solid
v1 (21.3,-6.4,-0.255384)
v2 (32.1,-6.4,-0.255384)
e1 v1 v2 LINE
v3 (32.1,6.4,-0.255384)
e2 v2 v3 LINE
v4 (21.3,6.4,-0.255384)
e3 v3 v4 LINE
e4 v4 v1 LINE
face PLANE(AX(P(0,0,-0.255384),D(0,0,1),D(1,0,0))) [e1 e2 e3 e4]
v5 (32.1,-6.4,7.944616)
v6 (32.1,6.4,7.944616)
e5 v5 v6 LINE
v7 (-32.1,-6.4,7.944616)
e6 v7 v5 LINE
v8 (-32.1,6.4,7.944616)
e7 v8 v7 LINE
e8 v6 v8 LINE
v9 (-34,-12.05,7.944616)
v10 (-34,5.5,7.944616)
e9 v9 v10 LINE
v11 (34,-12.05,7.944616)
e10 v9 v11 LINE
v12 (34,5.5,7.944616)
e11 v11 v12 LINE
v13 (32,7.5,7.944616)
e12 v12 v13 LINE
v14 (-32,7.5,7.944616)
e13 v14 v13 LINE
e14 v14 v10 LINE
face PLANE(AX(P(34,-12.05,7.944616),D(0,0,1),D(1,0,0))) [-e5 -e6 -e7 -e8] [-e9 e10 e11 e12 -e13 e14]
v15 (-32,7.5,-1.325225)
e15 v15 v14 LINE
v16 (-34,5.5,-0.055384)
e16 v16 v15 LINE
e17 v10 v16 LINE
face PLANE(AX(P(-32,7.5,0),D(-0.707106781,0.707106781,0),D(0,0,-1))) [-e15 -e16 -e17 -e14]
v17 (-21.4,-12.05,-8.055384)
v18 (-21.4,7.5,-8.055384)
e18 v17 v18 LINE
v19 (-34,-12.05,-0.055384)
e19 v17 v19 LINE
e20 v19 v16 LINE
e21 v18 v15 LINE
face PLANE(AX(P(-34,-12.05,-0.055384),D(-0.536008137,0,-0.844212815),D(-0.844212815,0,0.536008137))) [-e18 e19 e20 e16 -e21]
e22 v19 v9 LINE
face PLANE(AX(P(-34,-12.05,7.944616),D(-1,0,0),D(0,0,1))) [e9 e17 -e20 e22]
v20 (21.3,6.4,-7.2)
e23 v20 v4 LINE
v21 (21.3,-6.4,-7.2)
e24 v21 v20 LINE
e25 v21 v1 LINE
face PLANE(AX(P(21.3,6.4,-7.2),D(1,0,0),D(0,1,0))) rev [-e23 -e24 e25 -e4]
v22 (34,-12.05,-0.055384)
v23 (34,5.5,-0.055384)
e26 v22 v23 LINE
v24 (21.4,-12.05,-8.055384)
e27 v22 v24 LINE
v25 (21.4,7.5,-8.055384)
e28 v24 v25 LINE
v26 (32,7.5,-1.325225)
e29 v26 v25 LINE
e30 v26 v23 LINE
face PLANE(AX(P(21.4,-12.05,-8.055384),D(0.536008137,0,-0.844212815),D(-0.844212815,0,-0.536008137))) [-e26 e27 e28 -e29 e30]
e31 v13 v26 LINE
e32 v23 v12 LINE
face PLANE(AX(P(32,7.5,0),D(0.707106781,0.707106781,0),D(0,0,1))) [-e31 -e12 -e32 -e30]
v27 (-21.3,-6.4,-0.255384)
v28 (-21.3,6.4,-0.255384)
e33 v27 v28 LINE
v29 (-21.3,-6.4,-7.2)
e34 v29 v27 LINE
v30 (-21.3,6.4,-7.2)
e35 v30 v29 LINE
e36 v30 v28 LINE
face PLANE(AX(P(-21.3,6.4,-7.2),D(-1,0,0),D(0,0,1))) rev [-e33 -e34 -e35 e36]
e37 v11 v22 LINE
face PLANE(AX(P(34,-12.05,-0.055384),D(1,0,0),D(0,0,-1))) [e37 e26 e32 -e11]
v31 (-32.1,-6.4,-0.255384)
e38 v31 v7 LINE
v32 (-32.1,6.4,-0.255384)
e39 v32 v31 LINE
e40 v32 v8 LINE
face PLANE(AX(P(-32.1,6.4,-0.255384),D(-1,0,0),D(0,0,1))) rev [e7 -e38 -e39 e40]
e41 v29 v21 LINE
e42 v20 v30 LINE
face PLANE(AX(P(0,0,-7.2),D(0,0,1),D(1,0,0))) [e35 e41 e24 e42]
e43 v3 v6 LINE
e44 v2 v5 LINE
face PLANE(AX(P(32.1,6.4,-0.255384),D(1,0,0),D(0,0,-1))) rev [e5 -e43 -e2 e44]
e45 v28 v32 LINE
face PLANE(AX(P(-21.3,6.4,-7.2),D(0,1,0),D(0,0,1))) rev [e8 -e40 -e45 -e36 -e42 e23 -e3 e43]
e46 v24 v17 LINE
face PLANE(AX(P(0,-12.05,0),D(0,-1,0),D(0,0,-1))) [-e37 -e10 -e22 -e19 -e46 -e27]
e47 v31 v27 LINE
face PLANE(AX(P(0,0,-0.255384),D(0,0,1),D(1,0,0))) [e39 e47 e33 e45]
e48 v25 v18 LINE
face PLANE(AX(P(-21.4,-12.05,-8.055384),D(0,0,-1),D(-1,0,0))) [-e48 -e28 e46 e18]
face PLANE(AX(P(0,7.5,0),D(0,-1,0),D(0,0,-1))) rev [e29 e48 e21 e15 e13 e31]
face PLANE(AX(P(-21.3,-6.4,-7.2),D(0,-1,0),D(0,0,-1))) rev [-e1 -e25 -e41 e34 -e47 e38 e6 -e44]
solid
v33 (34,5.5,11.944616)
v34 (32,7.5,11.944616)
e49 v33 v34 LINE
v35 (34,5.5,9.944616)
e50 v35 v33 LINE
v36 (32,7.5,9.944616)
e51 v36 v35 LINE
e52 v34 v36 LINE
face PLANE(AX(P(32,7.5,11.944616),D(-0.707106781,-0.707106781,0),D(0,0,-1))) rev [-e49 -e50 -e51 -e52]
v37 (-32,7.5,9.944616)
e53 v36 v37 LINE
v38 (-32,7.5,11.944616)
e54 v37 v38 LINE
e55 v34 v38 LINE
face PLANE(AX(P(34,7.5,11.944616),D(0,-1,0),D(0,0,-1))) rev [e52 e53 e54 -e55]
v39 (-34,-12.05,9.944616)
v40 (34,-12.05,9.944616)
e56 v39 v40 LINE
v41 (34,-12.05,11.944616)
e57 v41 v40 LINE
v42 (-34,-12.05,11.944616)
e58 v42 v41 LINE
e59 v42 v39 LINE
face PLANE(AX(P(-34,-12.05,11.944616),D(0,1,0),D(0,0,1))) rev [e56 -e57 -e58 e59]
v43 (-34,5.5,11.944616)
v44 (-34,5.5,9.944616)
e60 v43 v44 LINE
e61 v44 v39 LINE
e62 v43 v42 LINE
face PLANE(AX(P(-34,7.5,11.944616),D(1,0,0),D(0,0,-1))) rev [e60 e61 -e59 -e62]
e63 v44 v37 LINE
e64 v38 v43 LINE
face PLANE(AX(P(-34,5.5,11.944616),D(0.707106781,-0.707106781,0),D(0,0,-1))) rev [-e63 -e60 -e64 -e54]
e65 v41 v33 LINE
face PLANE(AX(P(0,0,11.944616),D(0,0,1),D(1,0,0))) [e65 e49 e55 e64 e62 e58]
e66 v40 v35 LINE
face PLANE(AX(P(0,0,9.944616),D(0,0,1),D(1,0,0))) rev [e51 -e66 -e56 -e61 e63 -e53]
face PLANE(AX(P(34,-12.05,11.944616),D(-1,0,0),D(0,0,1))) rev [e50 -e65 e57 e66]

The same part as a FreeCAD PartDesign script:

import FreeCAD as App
import Part
import Sketcher


def edges_at(feature, points):
    """Names of the edges that pass closest to the given points."""
    edges = feature.Shape.Edges
    near = lambda p: min(range(len(edges)), key=lambda i: edges[i].distToShape(Part.Vertex(*p))[0])
    return sorted({f"Edge{near(p) + 1}" for p in points})

doc = App.newDocument("Part")
body = doc.addObject("PartDesign::Body", "Body")

# Sketch on XZ plane
sketch1 = body.newObject("Sketcher::SketchObject", "Sketch")
sketch1.AttachmentSupport = (doc.getObject("XZ_Plane"), [""])
sketch1.MapMode = "FlatFace"
sketch1.addGeometry(Part.LineSegment(App.Vector(-21.4, -8.055384, 0), App.Vector(-34, -0.055384, 0)), False)
sketch1.addGeometry(Part.LineSegment(App.Vector(-34, -0.055384, 0), App.Vector(-34, 7.944616, 0)), False)
sketch1.addGeometry(Part.LineSegment(App.Vector(-34, 7.944616, 0), App.Vector(34, 7.944616, 0)), False)
sketch1.addGeometry(Part.LineSegment(App.Vector(34, 7.944616, 0), App.Vector(34, -0.055384, 0)), False)
sketch1.addGeometry(Part.LineSegment(App.Vector(34, -0.055384, 0), App.Vector(21.4, -8.055384, 0)), False)
sketch1.addGeometry(Part.LineSegment(App.Vector(21.4, -8.055384, 0), App.Vector(-21.4, -8.055384, 0)), False)
sketch1.addConstraint(Sketcher.Constraint("Coincident", 0, 2, 1, 1))
sketch1.addConstraint(Sketcher.Constraint("Coincident", 1, 2, 2, 1))
sketch1.addConstraint(Sketcher.Constraint("Coincident", 2, 2, 3, 1))
sketch1.addConstraint(Sketcher.Constraint("Coincident", 3, 2, 4, 1))
sketch1.addConstraint(Sketcher.Constraint("Coincident", 4, 2, 5, 1))
sketch1.addConstraint(Sketcher.Constraint("Coincident", 5, 2, 0, 1))
sketch1.addConstraint(Sketcher.Constraint("Vertical", 1))
sketch1.addConstraint(Sketcher.Constraint("Horizontal", 2))
sketch1.addConstraint(Sketcher.Constraint("Vertical", 3))
sketch1.addConstraint(Sketcher.Constraint("Horizontal", 5))
sketch1.addConstraint(Sketcher.Constraint("Symmetric", 0, 2, 3, 2, -2))
sketch1.addConstraint(Sketcher.Constraint("Equal", 0, 4))
sketch1.addConstraint(Sketcher.Constraint("DistanceX", 2, 1, 2, 2, 68.0))
sketch1.addConstraint(Sketcher.Constraint("DistanceY", 1, 1, 1, 2, 8.0))
sketch1.addConstraint(Sketcher.Constraint("DistanceX", 5, 2, 5, 1, 42.8))
sketch1.addConstraint(Sketcher.Constraint("DistanceY", 4, 2, 3, 2, 8.0))
sketch1.addConstraint(Sketcher.Constraint("DistanceY", 0, 2, -1, 1, 0.055384))
pad1 = body.newObject("PartDesign::Pad", "Pad")
pad1.Profile = sketch1
pad1.Type = "TwoLengths"
pad1.Length = 7.5
pad1.Length2 = 12.05
pad1.Reversed = True

# Sketch on XY plane
sketch2 = body.newObject("Sketcher::SketchObject", "Sketch001")
sketch2.AttachmentSupport = (doc.getObject("XY_Plane"), [""])
sketch2.MapMode = "FlatFace"
sketch2.addGeometry(Part.LineSegment(App.Vector(-21.3, 6.4, 0), App.Vector(-21.3, -6.4, 0)), False)
sketch2.addGeometry(Part.LineSegment(App.Vector(-21.3, -6.4, 0), App.Vector(21.3, -6.4, 0)), False)
sketch2.addGeometry(Part.LineSegment(App.Vector(21.3, -6.4, 0), App.Vector(21.3, 6.4, 0)), False)
sketch2.addGeometry(Part.LineSegment(App.Vector(21.3, 6.4, 0), App.Vector(-21.3, 6.4, 0)), False)
sketch2.addConstraint(Sketcher.Constraint("Coincident", 0, 2, 1, 1))
sketch2.addConstraint(Sketcher.Constraint("Coincident", 1, 2, 2, 1))
sketch2.addConstraint(Sketcher.Constraint("Coincident", 2, 2, 3, 1))
sketch2.addConstraint(Sketcher.Constraint("Coincident", 3, 2, 0, 1))
sketch2.addConstraint(Sketcher.Constraint("Vertical", 0))
sketch2.addConstraint(Sketcher.Constraint("Horizontal", 1))
sketch2.addConstraint(Sketcher.Constraint("Vertical", 2))
sketch2.addConstraint(Sketcher.Constraint("Horizontal", 3))
sketch2.addConstraint(Sketcher.Constraint("Symmetric", 0, 2, 2, 2, -1, 1))
sketch2.addConstraint(Sketcher.Constraint("DistanceX", 1, 1, 1, 2, 42.6))
sketch2.addConstraint(Sketcher.Constraint("DistanceY", 0, 2, 0, 1, 12.8))
pocket1 = body.newObject("PartDesign::Pocket", "Pocket")
pocket1.Profile = sketch2
pocket1.Length = 7.2

# Sketch on XY plane
sketch3 = body.newObject("Sketcher::SketchObject", "Sketch002")
sketch3.AttachmentSupport = (doc.getObject("XY_Plane"), [""])
sketch3.MapMode = "FlatFace"
sketch3.addGeometry(Part.LineSegment(App.Vector(-21.3, 6.4, 0), App.Vector(-21.3, -6.4, 0)), False)
sketch3.addGeometry(Part.LineSegment(App.Vector(-21.3, -6.4, 0), App.Vector(21.3, -6.4, 0)), False)
sketch3.addGeometry(Part.LineSegment(App.Vector(21.3, -6.4, 0), App.Vector(21.3, 6.4, 0)), False)
sketch3.addGeometry(Part.LineSegment(App.Vector(21.3, 6.4, 0), App.Vector(-21.3, 6.4, 0)), False)
sketch3.addConstraint(Sketcher.Constraint("Coincident", 0, 2, 1, 1))
sketch3.addConstraint(Sketcher.Constraint("Coincident", 1, 2, 2, 1))
sketch3.addConstraint(Sketcher.Constraint("Coincident", 2, 2, 3, 1))
sketch3.addConstraint(Sketcher.Constraint("Coincident", 3, 2, 0, 1))
sketch3.addConstraint(Sketcher.Constraint("Vertical", 0))
sketch3.addConstraint(Sketcher.Constraint("Horizontal", 1))
sketch3.addConstraint(Sketcher.Constraint("Vertical", 2))
sketch3.addConstraint(Sketcher.Constraint("Horizontal", 3))
sketch3.addConstraint(Sketcher.Constraint("Symmetric", 0, 2, 2, 2, -1, 1))
sketch3.addConstraint(Sketcher.Constraint("DistanceX", 1, 1, 1, 2, 42.6))
sketch3.addConstraint(Sketcher.Constraint("DistanceY", 0, 2, 0, 1, 12.8))
pocket2 = body.newObject("PartDesign::Pocket", "Pocket001")
pocket2.Profile = sketch3
pocket2.Type = "ThroughAll"
pocket2.Reversed = True

# Sketch on XY plane
sketch4 = body.newObject("Sketcher::SketchObject", "Sketch003")
sketch4.AttachmentSupport = (doc.getObject("XY_Plane"), [""])
sketch4.MapMode = "FlatFace"
sketch4.AttachmentOffset = App.Placement(App.Vector(0, 0, 7.944616), App.Rotation())
sketch4.addGeometry(Part.LineSegment(App.Vector(-32.1, 6.4, 0), App.Vector(-32.1, -6.4, 0)), False)
sketch4.addGeometry(Part.LineSegment(App.Vector(-32.1, -6.4, 0), App.Vector(32.1, -6.4, 0)), False)
sketch4.addGeometry(Part.LineSegment(App.Vector(32.1, -6.4, 0), App.Vector(32.1, 6.4, 0)), False)
sketch4.addGeometry(Part.LineSegment(App.Vector(32.1, 6.4, 0), App.Vector(-32.1, 6.4, 0)), False)
sketch4.addConstraint(Sketcher.Constraint("Coincident", 0, 2, 1, 1))
sketch4.addConstraint(Sketcher.Constraint("Coincident", 1, 2, 2, 1))
sketch4.addConstraint(Sketcher.Constraint("Coincident", 2, 2, 3, 1))
sketch4.addConstraint(Sketcher.Constraint("Coincident", 3, 2, 0, 1))
sketch4.addConstraint(Sketcher.Constraint("Vertical", 0))
sketch4.addConstraint(Sketcher.Constraint("Horizontal", 1))
sketch4.addConstraint(Sketcher.Constraint("Vertical", 2))
sketch4.addConstraint(Sketcher.Constraint("Horizontal", 3))
sketch4.addConstraint(Sketcher.Constraint("Symmetric", 0, 2, 2, 2, -1, 1))
sketch4.addConstraint(Sketcher.Constraint("DistanceX", 1, 1, 1, 2, 64.2))
sketch4.addConstraint(Sketcher.Constraint("DistanceY", 0, 2, 0, 1, 12.8))
pocket3 = body.newObject("PartDesign::Pocket", "Pocket002")
pocket3.Profile = sketch4
pocket3.Length = 8.2
doc.recompute()

chamfer = body.newObject("PartDesign::Chamfer", "Chamfer")
chamfer.Base = (pocket3, edges_at(pocket3, [(-34, 7.5, 3.945), (34, 7.5, 3.945)]))
chamfer.Size = 2
body2 = doc.addObject("PartDesign::Body", "Body001")

# Sketch on XY plane
sketch5 = body2.newObject("Sketcher::SketchObject", "Sketch004")
sketch5.AttachmentSupport = (doc.getObject("XY_Plane001"), [""])
sketch5.MapMode = "FlatFace"
sketch5.AttachmentOffset = App.Placement(App.Vector(0, 0, 9.944616), App.Rotation())
sketch5.addGeometry(Part.LineSegment(App.Vector(-34, 7.5, 0), App.Vector(-34, -12.05, 0)), False)
sketch5.addGeometry(Part.LineSegment(App.Vector(-34, -12.05, 0), App.Vector(34, -12.05, 0)), False)
sketch5.addGeometry(Part.LineSegment(App.Vector(34, -12.05, 0), App.Vector(34, 7.5, 0)), False)
sketch5.addGeometry(Part.LineSegment(App.Vector(34, 7.5, 0), App.Vector(-34, 7.5, 0)), False)
sketch5.addConstraint(Sketcher.Constraint("Coincident", 0, 2, 1, 1))
sketch5.addConstraint(Sketcher.Constraint("Coincident", 1, 2, 2, 1))
sketch5.addConstraint(Sketcher.Constraint("Coincident", 2, 2, 3, 1))
sketch5.addConstraint(Sketcher.Constraint("Coincident", 3, 2, 0, 1))
sketch5.addConstraint(Sketcher.Constraint("Vertical", 0))
sketch5.addConstraint(Sketcher.Constraint("Horizontal", 1))
sketch5.addConstraint(Sketcher.Constraint("Vertical", 2))
sketch5.addConstraint(Sketcher.Constraint("Horizontal", 3))
sketch5.addConstraint(Sketcher.Constraint("DistanceX", 1, 1, 1, 2, 68.0))
sketch5.addConstraint(Sketcher.Constraint("DistanceX", 0, 2, -1, 1, 34.0))
sketch5.addConstraint(Sketcher.Constraint("DistanceY", 0, 2, 0, 1, 19.55))
sketch5.addConstraint(Sketcher.Constraint("DistanceY", -1, 1, 2, 2, 7.5))
pad2 = body2.newObject("PartDesign::Pad", "Pad001")
pad2.Profile = sketch5
pad2.Length = 2
doc.recompute()

chamfer2 = body2.newObject("PartDesign::Chamfer", "Chamfer001")
chamfer2.Base = (pad2, edges_at(pad2, [(-34, 7.5, 10.945), (34, 7.5, 10.945)]))
chamfer2.Size = 2

doc.recompute()
